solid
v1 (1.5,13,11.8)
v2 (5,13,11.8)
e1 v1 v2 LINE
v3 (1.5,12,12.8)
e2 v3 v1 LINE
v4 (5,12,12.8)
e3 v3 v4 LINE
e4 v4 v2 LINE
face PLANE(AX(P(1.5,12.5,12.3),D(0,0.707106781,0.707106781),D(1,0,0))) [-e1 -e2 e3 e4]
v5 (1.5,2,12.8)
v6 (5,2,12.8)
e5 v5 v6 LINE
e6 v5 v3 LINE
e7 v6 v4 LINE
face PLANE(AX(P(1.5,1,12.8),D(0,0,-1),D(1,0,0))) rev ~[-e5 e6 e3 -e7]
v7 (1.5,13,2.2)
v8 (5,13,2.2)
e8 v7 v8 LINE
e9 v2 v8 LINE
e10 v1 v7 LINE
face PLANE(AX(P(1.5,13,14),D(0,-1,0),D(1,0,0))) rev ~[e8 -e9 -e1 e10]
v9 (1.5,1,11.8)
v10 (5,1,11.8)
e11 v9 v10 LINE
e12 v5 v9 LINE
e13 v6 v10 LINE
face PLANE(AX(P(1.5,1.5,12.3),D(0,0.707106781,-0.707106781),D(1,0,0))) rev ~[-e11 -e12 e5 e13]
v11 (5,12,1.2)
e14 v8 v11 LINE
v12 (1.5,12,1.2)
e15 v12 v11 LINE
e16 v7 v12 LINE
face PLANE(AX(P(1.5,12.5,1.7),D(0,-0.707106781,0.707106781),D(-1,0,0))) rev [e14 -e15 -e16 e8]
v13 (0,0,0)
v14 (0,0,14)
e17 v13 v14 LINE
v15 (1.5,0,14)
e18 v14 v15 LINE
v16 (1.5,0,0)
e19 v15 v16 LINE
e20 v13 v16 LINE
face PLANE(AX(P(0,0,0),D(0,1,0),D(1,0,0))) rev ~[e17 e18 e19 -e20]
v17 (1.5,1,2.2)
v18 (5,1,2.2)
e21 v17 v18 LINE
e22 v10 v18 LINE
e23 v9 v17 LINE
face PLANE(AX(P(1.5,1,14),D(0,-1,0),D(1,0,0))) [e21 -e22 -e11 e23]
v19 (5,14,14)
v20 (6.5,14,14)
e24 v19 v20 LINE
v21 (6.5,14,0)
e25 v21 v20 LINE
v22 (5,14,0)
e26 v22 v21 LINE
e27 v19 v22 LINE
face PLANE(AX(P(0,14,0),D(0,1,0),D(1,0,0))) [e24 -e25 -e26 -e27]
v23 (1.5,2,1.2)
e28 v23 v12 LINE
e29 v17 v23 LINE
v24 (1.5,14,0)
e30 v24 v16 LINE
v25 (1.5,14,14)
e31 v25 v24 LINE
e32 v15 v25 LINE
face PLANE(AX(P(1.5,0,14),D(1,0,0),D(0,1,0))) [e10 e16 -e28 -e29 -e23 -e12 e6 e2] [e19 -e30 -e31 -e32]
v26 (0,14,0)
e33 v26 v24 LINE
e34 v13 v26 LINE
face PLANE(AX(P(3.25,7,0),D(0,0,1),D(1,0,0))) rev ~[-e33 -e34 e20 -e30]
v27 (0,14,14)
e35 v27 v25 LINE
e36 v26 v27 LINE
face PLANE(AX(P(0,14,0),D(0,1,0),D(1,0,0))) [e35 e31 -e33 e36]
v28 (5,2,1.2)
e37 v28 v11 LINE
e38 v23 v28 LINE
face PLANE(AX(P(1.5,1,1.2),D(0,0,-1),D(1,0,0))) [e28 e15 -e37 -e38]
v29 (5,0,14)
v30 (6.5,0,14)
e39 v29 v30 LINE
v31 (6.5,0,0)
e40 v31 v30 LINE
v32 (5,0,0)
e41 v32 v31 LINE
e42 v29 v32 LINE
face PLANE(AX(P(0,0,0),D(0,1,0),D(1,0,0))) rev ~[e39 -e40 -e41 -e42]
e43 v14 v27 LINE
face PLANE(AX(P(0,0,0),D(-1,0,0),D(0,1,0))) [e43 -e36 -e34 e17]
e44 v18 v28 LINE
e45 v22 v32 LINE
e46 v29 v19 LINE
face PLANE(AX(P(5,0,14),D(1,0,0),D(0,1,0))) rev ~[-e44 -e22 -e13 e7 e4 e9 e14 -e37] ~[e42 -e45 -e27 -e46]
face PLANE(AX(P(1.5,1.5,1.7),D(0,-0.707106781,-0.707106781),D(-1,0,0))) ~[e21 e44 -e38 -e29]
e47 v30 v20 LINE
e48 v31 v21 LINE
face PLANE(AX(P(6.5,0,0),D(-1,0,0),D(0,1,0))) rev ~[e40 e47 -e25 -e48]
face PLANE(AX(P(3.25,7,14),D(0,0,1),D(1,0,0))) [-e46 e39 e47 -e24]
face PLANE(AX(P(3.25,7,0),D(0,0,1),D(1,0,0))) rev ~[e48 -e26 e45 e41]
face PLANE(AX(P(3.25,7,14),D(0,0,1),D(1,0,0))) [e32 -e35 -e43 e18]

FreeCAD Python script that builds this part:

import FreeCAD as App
import Part
import Sketcher
Q = App.Units.Quantity


def edges_at(feature, points):
    """Names of the edges that pass closest to the given points."""
    edges = feature.Shape.Edges
    near = lambda p: min(range(len(edges)), key=lambda i: edges[i].distToShape(Part.Vertex(*p))[0])
    return sorted({f"Edge{near(p) + 1}" for p in points})

doc = App.newDocument("Part")
params = doc.addObject("Spreadsheet::Sheet", "Params")
for row, (alias, value) in enumerate([
    ("sketch1_height", "14 mm"),
    ("sketch1_width", "6.5 mm"),
    ("pad1_length", "14 mm"),
    ("sketch2_height", "1 mm"),
    ("sketch2_width", "3.5 mm"),
    ("pocket1_length", "14 mm"),
    ("sketch3_width", "3.5 mm"),
    ("sketch3_height", "1.2 mm"),
    ("pocket2_length", "14 mm"),
    ("chamfer_size", "1 mm"),
    ("chamfer2_size", "1 mm"),
    ("chamfer3_size", "1 mm"),
    ("chamfer4_size", "1 mm"),
], start=1):
    params.set(f"A{row}", alias)
    params.set(f"B{row}", "=" + value)
    params.setAlias(f"B{row}", alias)

body = doc.addObject("PartDesign::Body", "Body")

sketch1 = doc.addObject("Sketcher::SketchObject", "Sketch")
body.addObject(sketch1)
sketch1.AttachmentSupport = (doc.XY_Plane, [""])
sketch1.MapMode = "FlatFace"
sketch1.addGeometry(Part.LineSegment(App.Vector(0, 14, 0), App.Vector(0, 0, 0)), False)
sketch1.addGeometry(Part.LineSegment(App.Vector(0, 0, 0), App.Vector(6, 0, 0)), False)
sketch1.addGeometry(Part.LineSegment(App.Vector(6, 0, 0), App.Vector(6, 14, 0)), False)
sketch1.addGeometry(Part.LineSegment(App.Vector(6, 14, 0), App.Vector(0, 14, 0)), False)
sketch1.addConstraint(Sketcher.Constraint("Coincident", 0, 2, 1, 1))
sketch1.addConstraint(Sketcher.Constraint("Coincident", 1, 2, 2, 1))
sketch1.addConstraint(Sketcher.Constraint("Coincident", 2, 2, 3, 1))
sketch1.addConstraint(Sketcher.Constraint("Coincident", 3, 2, 0, 1))
sketch1.addConstraint(Sketcher.Constraint("Vertical", 0))
sketch1.addConstraint(Sketcher.Constraint("Horizontal", 1))
sketch1.addConstraint(Sketcher.Constraint("Vertical", 2))
sketch1.addConstraint(Sketcher.Constraint("Horizontal", 3))
sketch1.addConstraint(Sketcher.Constraint("Coincident", 0, 2, -1, 1))
sketch1.addConstraint(Sketcher.Constraint("DistanceY", 0, 2, 0, 1, Q("14 mm")))
sketch1.addConstraint(Sketcher.Constraint("DistanceX", 1, 1, 1, 2, Q("6.5 mm")))
sketch1.setExpression("Constraints[9]", "Params.sketch1_height")
sketch1.setExpression("Constraints[10]", "Params.sketch1_width")
pad1 = doc.addObject("PartDesign::Pad", "Pad")
body.addObject(pad1)
pad1.Profile = sketch1
pad1.setExpression("Length", "Params.pad1_length")

sketch2 = doc.addObject("Sketcher::SketchObject", "Sketch001")
body.addObject(sketch2)
sketch2.AttachmentSupport = (doc.XY_Plane, [""])
sketch2.MapMode = "FlatFace"
sketch2.AttachmentOffset = App.Placement(App.Vector(0, 0, 14), App.Rotation())
sketch2.addGeometry(Part.LineSegment(App.Vector(1.5, 14, 0), App.Vector(1.5, 13, 0)), False)
sketch2.addGeometry(Part.LineSegment(App.Vector(1.5, 13, 0), App.Vector(5, 13, 0)), False)
sketch2.addGeometry(Part.LineSegment(App.Vector(5, 13, 0), App.Vector(5, 14, 0)), False)
sketch2.addGeometry(Part.LineSegment(App.Vector(5, 14, 0), App.Vector(1.5, 14, 0)), False)
sketch2.addGeometry(Part.LineSegment(App.Vector(1.5, 1, 0), App.Vector(1.5, 0, 0)), False)
sketch2.addGeometry(Part.LineSegment(App.Vector(1.5, 0, 0), App.Vector(5, 0, 0)), False)
sketch2.addGeometry(Part.LineSegment(App.Vector(5, 0, 0), App.Vector(5, 1, 0)), False)
sketch2.addGeometry(Part.LineSegment(App.Vector(5, 1, 0), App.Vector(1.5, 1, 0)), False)
sketch2.addConstraint(Sketcher.Constraint("Coincident", 0, 2, 1, 1))
sketch2.addConstraint(Sketcher.Constraint("Coincident", 1, 2, 2, 1))
sketch2.addConstraint(Sketcher.Constraint("Coincident", 2, 2, 3, 1))
sketch2.addConstraint(Sketcher.Constraint("Coincident", 3, 2, 0, 1))
sketch2.addConstraint(Sketcher.Constraint("Coincident", 4, 2, 5, 1))
sketch2.addConstraint(Sketcher.Constraint("Coincident", 5, 2, 6, 1))
sketch2.addConstraint(Sketcher.Constraint("Coincident", 6, 2, 7, 1))
sketch2.addConstraint(Sketcher.Constraint("Coincident", 7, 2, 4, 1))
sketch2.addConstraint(Sketcher.Constraint("Vertical", 0))
sketch2.addConstraint(Sketcher.Constraint("Horizontal", 1))
sketch2.addConstraint(Sketcher.Constraint("Vertical", 2))
sketch2.addConstraint(Sketcher.Constraint("Horizontal", 3))
sketch2.addConstraint(Sketcher.Constraint("Vertical", 4))
sketch2.addConstraint(Sketcher.Constraint("Horizontal", 5))
sketch2.addConstraint(Sketcher.Constraint("Vertical", 6))
sketch2.addConstraint(Sketcher.Constraint("Horizontal", 7))
sketch2.addConstraint(Sketcher.Constraint("PointOnObject", 4, 2, -1))
sketch2.addConstraint(Sketcher.Constraint("Vertical", 3, 2, 4, 2))
sketch2.addConstraint(Sketcher.Constraint("Vertical", 2, 2, 5, 2))
sketch2.addConstraint(Sketcher.Constraint("Equal", 2, 4))
sketch2.addConstraint(Sketcher.Constraint("DistanceY", 0, 2, 0, 1, Q("1 mm")))
sketch2.addConstraint(Sketcher.Constraint("DistanceX", 1, 1, 1, 2, Q("3.5 mm")))
sketch2.addConstraint(Sketcher.Constraint("DistanceY", -1, 1, 0, 2, Q("13 mm")))
sketch2.addConstraint(Sketcher.Constraint("DistanceX", -1, 1, 1, 2, Q("5 mm")))
sketch2.setExpression("Constraints[20]", "Params.sketch2_height")
sketch2.setExpression("Constraints[21]", "Params.sketch2_width")
pocket1 = doc.addObject("PartDesign::Pocket", "Pocket")
body.addObject(pocket1)
pocket1.Profile = sketch2
pocket1.setExpression("Length", "Params.pocket1_length")

sketch3 = doc.addObject("Sketcher::SketchObject", "Sketch002")
body.addObject(sketch3)
sketch3.AttachmentSupport = (doc.XZ_Plane, [""])
sketch3.MapMode = "FlatFace"
sketch3.AttachmentOffset = App.Placement(App.Vector(0, 0, -1), App.Rotation())
sketch3.addGeometry(Part.LineSegment(App.Vector(1.5, 14, 0), App.Vector(1.5, 12.8, 0)), False)
sketch3.addGeometry(Part.LineSegment(App.Vector(1.5, 12.8, 0), App.Vector(5, 12.8, 0)), False)
sketch3.addGeometry(Part.LineSegment(App.Vector(5, 12.8, 0), App.Vector(5, 14, 0)), False)
sketch3.addGeometry(Part.LineSegment(App.Vector(5, 14, 0), App.Vector(1.5, 14, 0)), False)
sketch3.addGeometry(Part.LineSegment(App.Vector(1.5, 1.2, 0), App.Vector(1.5, 0, 0)), False)
sketch3.addGeometry(Part.LineSegment(App.Vector(1.5, 0, 0), App.Vector(5, 0, 0)), False)
sketch3.addGeometry(Part.LineSegment(App.Vector(5, 0, 0), App.Vector(5, 1.2, 0)), False)
sketch3.addGeometry(Part.LineSegment(App.Vector(5, 1.2, 0), App.Vector(1.5, 1.2, 0)), False)
sketch3.addConstraint(Sketcher.Constraint("Coincident", 0, 2, 1, 1))
sketch3.addConstraint(Sketcher.Constraint("Coincident", 1, 2, 2, 1))
sketch3.addConstraint(Sketcher.Constraint("Coincident", 2, 2, 3, 1))
sketch3.addConstraint(Sketcher.Constraint("Coincident", 3, 2, 0, 1))
sketch3.addConstraint(Sketcher.Constraint("Coincident", 4, 2, 5, 1))
sketch3.addConstraint(Sketcher.Constraint("Coincident", 5, 2, 6, 1))
sketch3.addConstraint(Sketcher.Constraint("Coincident", 6, 2, 7, 1))
sketch3.addConstraint(Sketcher.Constraint("Coincident", 7, 2, 4, 1))
sketch3.addConstraint(Sketcher.Constraint("Vertical", 0))
sketch3.addConstraint(Sketcher.Constraint("Horizontal", 1))
sketch3.addConstraint(Sketcher.Constraint("Vertical", 2))
sketch3.addConstraint(Sketcher.Constraint("Horizontal", 3))
sketch3.addConstraint(Sketcher.Constraint("Vertical", 4))
sketch3.addConstraint(Sketcher.Constraint("Horizontal", 5))
sketch3.addConstraint(Sketcher.Constraint("Vertical", 6))
sketch3.addConstraint(Sketcher.Constraint("Horizontal", 7))
sketch3.addConstraint(Sketcher.Constraint("PointOnObject", 4, 2, -1))
sketch3.addConstraint(Sketcher.Constraint("Vertical", 3, 2, 4, 2))
sketch3.addConstraint(Sketcher.Constraint("Vertical", 2, 2, 5, 2))
sketch3.addConstraint(Sketcher.Constraint("Equal", 2, 4))
sketch3.addConstraint(Sketcher.Constraint("DistanceX", 1, 1, 1, 2, Q("3.5 mm")))
sketch3.addConstraint(Sketcher.Constraint("DistanceY", 0, 2, 0, 1, Q("1.2 mm")))
sketch3.addConstraint(Sketcher.Constraint("DistanceX", -1, 1, 1, 2, Q("5 mm")))
sketch3.addConstraint(Sketcher.Constraint("DistanceY", -1, 1, 2, 2, Q("14 mm")))
sketch3.setExpression("Constraints[20]", "Params.sketch3_width")
sketch3.setExpression("Constraints[21]", "Params.sketch3_height")
pocket2 = doc.addObject("PartDesign::Pocket", "Pocket001")
body.addObject(pocket2)
pocket2.Profile = sketch3
pocket2.setExpression("Length", "Params.pocket2_length")
doc.recompute()

chamfer = doc.addObject("PartDesign::Chamfer", "Chamfer")
body.addObject(chamfer)
chamfer.Base = (pocket2, edges_at(pocket2, [(3.25, 1, 12.8)]))
chamfer.setExpression("Size", "Params.chamfer_size")
doc.recompute()

chamfer2 = doc.addObject("PartDesign::Chamfer", "Chamfer001")
body.addObject(chamfer2)
chamfer2.Base = (chamfer, edges_at(chamfer, [(3.25, 1, 1.2)]))
chamfer2.setExpression("Size", "Params.chamfer2_size")
doc.recompute()

chamfer3 = doc.addObject("PartDesign::Chamfer", "Chamfer002")
body.addObject(chamfer3)
chamfer3.Base = (chamfer2, edges_at(chamfer2, [(3.25, 13, 12.8)]))
chamfer3.setExpression("Size", "Params.chamfer3_size")
doc.recompute()

chamfer4 = doc.addObject("PartDesign::Chamfer", "Chamfer003")
body.addObject(chamfer4)
chamfer4.Base = (chamfer3, edges_at(chamfer3, [(3.25, 13, 1.2)]))
chamfer4.setExpression("Size", "Params.chamfer4_size")

doc.recompute()
